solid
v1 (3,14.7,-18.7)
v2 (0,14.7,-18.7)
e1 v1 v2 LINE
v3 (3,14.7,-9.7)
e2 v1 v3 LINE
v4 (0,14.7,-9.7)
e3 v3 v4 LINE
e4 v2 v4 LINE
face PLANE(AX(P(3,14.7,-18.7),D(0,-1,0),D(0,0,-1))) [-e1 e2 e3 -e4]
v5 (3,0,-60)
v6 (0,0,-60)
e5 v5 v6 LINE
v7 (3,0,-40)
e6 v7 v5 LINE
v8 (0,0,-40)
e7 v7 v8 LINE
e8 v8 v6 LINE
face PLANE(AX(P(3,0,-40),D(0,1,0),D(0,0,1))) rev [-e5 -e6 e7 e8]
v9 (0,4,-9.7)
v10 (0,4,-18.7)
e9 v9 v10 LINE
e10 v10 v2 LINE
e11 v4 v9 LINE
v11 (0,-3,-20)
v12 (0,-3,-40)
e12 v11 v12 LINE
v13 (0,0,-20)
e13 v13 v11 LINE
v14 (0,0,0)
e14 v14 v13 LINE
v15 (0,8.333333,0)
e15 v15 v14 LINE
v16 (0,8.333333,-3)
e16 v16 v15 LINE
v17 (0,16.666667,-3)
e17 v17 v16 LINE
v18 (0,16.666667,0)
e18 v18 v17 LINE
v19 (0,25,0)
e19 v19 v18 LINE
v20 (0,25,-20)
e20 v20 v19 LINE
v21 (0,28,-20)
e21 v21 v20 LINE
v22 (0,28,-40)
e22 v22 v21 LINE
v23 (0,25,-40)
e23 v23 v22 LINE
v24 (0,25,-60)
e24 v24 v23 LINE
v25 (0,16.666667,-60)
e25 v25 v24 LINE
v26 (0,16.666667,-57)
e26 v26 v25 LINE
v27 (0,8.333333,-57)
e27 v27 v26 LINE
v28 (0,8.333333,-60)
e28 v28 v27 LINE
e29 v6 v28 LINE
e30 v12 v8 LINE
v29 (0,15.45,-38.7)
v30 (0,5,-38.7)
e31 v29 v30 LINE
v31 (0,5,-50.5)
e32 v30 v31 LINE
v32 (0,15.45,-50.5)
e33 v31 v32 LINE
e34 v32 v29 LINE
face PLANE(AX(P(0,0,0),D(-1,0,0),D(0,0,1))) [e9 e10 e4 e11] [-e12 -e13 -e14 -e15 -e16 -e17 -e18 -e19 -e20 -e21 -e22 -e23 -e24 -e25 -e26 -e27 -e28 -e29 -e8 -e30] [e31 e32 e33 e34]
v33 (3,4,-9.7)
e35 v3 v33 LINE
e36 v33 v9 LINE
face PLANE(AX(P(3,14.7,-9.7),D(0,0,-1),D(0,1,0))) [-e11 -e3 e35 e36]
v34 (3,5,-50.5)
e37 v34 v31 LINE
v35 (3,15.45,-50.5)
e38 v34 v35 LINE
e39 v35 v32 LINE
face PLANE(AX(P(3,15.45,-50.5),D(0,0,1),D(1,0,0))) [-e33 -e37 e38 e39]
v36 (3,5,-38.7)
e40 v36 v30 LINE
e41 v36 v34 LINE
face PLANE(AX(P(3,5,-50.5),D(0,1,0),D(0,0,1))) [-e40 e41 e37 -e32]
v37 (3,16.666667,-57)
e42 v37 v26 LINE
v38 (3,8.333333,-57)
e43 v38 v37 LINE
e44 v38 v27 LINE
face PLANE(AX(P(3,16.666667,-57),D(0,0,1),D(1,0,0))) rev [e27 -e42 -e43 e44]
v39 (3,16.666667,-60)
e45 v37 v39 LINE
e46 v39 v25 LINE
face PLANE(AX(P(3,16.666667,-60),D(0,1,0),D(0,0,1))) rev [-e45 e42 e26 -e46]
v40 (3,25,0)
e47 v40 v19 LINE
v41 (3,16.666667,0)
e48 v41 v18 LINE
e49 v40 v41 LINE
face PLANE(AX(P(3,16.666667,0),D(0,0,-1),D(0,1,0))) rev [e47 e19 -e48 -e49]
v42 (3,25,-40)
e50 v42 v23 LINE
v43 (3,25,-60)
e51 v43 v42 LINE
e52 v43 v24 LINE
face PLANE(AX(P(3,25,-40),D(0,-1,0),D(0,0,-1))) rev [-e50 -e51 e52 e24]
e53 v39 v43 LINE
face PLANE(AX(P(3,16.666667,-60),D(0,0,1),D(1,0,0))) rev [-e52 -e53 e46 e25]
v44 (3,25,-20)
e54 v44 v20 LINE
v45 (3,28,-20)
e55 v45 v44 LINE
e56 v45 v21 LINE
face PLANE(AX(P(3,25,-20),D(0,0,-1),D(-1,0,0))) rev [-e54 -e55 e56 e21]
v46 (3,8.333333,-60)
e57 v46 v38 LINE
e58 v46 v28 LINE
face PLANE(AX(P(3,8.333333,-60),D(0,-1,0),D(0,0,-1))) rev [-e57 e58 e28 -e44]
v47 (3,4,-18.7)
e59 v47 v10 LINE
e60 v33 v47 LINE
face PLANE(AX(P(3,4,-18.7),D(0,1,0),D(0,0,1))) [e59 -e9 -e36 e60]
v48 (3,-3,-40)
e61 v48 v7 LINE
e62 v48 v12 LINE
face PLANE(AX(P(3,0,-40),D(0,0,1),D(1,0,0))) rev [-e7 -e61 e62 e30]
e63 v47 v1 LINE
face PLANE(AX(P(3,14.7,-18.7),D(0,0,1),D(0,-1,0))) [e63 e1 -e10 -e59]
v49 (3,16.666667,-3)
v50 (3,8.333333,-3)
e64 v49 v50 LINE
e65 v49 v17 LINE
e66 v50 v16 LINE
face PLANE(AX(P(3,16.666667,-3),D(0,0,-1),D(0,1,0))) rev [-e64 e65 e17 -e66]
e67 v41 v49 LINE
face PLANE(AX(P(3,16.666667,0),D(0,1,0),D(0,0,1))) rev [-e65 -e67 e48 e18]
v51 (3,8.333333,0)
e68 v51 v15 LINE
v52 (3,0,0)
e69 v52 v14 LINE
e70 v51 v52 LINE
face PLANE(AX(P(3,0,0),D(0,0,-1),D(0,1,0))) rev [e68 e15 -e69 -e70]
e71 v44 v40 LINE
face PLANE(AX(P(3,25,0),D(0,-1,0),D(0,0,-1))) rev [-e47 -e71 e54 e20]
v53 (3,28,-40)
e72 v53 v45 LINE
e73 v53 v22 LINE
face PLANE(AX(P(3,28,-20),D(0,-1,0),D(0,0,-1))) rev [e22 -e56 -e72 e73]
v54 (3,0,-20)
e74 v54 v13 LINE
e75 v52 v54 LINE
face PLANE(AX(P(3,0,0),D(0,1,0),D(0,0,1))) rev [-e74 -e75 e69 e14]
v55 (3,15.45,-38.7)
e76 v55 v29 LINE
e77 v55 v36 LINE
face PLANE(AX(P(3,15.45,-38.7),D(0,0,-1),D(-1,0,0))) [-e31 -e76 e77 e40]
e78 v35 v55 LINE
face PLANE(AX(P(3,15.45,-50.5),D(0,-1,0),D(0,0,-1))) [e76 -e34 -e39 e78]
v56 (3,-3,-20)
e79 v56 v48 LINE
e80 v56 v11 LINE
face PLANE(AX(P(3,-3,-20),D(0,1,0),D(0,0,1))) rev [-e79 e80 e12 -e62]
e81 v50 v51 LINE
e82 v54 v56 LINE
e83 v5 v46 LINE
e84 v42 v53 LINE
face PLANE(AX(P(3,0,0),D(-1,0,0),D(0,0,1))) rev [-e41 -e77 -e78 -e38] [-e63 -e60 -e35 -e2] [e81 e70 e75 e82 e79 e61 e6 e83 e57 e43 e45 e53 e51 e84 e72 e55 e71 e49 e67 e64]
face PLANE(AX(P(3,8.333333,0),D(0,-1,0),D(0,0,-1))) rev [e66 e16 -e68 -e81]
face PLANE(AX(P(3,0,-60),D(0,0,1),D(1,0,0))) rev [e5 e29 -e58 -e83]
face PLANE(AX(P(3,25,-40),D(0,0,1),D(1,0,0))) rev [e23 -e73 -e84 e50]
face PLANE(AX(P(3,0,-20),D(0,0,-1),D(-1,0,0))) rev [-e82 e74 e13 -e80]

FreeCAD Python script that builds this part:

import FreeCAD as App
import Part
import Sketcher

doc = App.newDocument("Part")
body = doc.addObject("PartDesign::Body", "Body")

# Sketch on YZ plane
sketch1 = body.newObject("Sketcher::SketchObject", "Sketch")
sketch1.AttachmentSupport = (doc.getObject("YZ_Plane"), [""])
sketch1.MapMode = "FlatFace"
sketch1.addGeometry([
    Part.LineSegment(App.Vector(25, 0, 0), App.Vector(16.666667, 0, 0)),  # 0
    Part.LineSegment(App.Vector(16.666667, 0, 0), App.Vector(16.666667, -3, 0)),  # 1
    Part.LineSegment(App.Vector(16.666667, -3, 0), App.Vector(8.333333, -3, 0)),  # 2
    Part.LineSegment(App.Vector(8.333333, -3, 0), App.Vector(8.333333, 0, 0)),  # 3
    Part.LineSegment(App.Vector(8.333333, 0, 0), App.Vector(0, 0, 0)),  # 4
    Part.LineSegment(App.Vector(0, 0, 0), App.Vector(0, -20, 0)),  # 5
    Part.LineSegment(App.Vector(0, -20, 0), App.Vector(-3, -20, 0)),  # 6
    Part.LineSegment(App.Vector(-3, -20, 0), App.Vector(-3, -40, 0)),  # 7
    Part.LineSegment(App.Vector(-3, -40, 0), App.Vector(0, -40, 0)),  # 8
    Part.LineSegment(App.Vector(0, -40, 0), App.Vector(0, -60, 0)),  # 9
    Part.LineSegment(App.Vector(0, -60, 0), App.Vector(8.333333, -60, 0)),  # 10
    Part.LineSegment(App.Vector(8.333333, -60, 0), App.Vector(8.333333, -57, 0)),  # 11
    Part.LineSegment(App.Vector(8.333333, -57, 0), App.Vector(16.666667, -57, 0)),  # 12
    Part.LineSegment(App.Vector(16.666667, -57, 0), App.Vector(16.666667, -60, 0)),  # 13
    Part.LineSegment(App.Vector(16.666667, -60, 0), App.Vector(25, -60, 0)),  # 14
    Part.LineSegment(App.Vector(25, -60, 0), App.Vector(25, -40, 0)),  # 15
    Part.LineSegment(App.Vector(25, -40, 0), App.Vector(28, -40, 0)),  # 16
    Part.LineSegment(App.Vector(28, -40, 0), App.Vector(28, -20, 0)),  # 17
    Part.LineSegment(App.Vector(28, -20, 0), App.Vector(25, -20, 0)),  # 18
    Part.LineSegment(App.Vector(25, -20, 0), App.Vector(25, 0, 0)),  # 19
    Part.LineSegment(App.Vector(4, -9.7, 0), App.Vector(14.7, -9.7, 0)),  # 20
    Part.LineSegment(App.Vector(14.7, -9.7, 0), App.Vector(14.7, -18.7, 0)),  # 21
    Part.LineSegment(App.Vector(14.7, -18.7, 0), App.Vector(4, -18.7, 0)),  # 22
    Part.LineSegment(App.Vector(4, -18.7, 0), App.Vector(4, -9.7, 0)),  # 23
    Part.LineSegment(App.Vector(5, -38.7, 0), App.Vector(15.45, -38.7, 0)),  # 24
    Part.LineSegment(App.Vector(15.45, -38.7, 0), App.Vector(15.45, -50.5, 0)),  # 25
    Part.LineSegment(App.Vector(15.45, -50.5, 0), App.Vector(5, -50.5, 0)),  # 26
    Part.LineSegment(App.Vector(5, -50.5, 0), App.Vector(5, -38.7, 0)),  # 27
], False)
sketch1.addConstraint([
    Sketcher.Constraint("Coincident", 0, 2, 1, 1),
    Sketcher.Constraint("Coincident", 1, 2, 2, 1),
    Sketcher.Constraint("Coincident", 2, 2, 3, 1),
    Sketcher.Constraint("Coincident", 3, 2, 4, 1),
    Sketcher.Constraint("Coincident", 4, 2, 5, 1),
    Sketcher.Constraint("Coincident", 5, 2, 6, 1),
    Sketcher.Constraint("Coincident", 6, 2, 7, 1),
    Sketcher.Constraint("Coincident", 7, 2, 8, 1),
    Sketcher.Constraint("Coincident", 8, 2, 9, 1),
    Sketcher.Constraint("Coincident", 9, 2, 10, 1),
    Sketcher.Constraint("Coincident", 10, 2, 11, 1),
    Sketcher.Constraint("Coincident", 11, 2, 12, 1),
    Sketcher.Constraint("Coincident", 12, 2, 13, 1),
    Sketcher.Constraint("Coincident", 13, 2, 14, 1),
    Sketcher.Constraint("Coincident", 14, 2, 15, 1),
    Sketcher.Constraint("Coincident", 15, 2, 16, 1),
    Sketcher.Constraint("Coincident", 16, 2, 17, 1),
    Sketcher.Constraint("Coincident", 17, 2, 18, 1),
    Sketcher.Constraint("Coincident", 18, 2, 19, 1),
    Sketcher.Constraint("Coincident", 19, 2, 0, 1),
    Sketcher.Constraint("Coincident", 20, 2, 21, 1),
    Sketcher.Constraint("Coincident", 21, 2, 22, 1),
    Sketcher.Constraint("Coincident", 22, 2, 23, 1),
    Sketcher.Constraint("Coincident", 23, 2, 20, 1),
    Sketcher.Constraint("Coincident", 24, 2, 25, 1),
    Sketcher.Constraint("Coincident", 25, 2, 26, 1),
    Sketcher.Constraint("Coincident", 26, 2, 27, 1),
    Sketcher.Constraint("Coincident", 27, 2, 24, 1),
    Sketcher.Constraint("Horizontal", 0),
    Sketcher.Constraint("Vertical", 1),
    Sketcher.Constraint("Horizontal", 2),
    Sketcher.Constraint("Vertical", 3),
    Sketcher.Constraint("Horizontal", 4),
    Sketcher.Constraint("Vertical", 5),
    Sketcher.Constraint("Horizontal", 6),
    Sketcher.Constraint("Vertical", 7),
    Sketcher.Constraint("Horizontal", 8),
    Sketcher.Constraint("Vertical", 9),
    Sketcher.Constraint("Horizontal", 10),
    Sketcher.Constraint("Vertical", 11),
    Sketcher.Constraint("Horizontal", 12),
    Sketcher.Constraint("Vertical", 13),
    Sketcher.Constraint("Horizontal", 14),
    Sketcher.Constraint("Vertical", 15),
    Sketcher.Constraint("Horizontal", 16),
    Sketcher.Constraint("Vertical", 17),
    Sketcher.Constraint("Horizontal", 18),
    Sketcher.Constraint("Vertical", 19),
    Sketcher.Constraint("Horizontal", 20),
    Sketcher.Constraint("Vertical", 21),
    Sketcher.Constraint("Horizontal", 22),
    Sketcher.Constraint("Vertical", 23),
    Sketcher.Constraint("Horizontal", 24),
    Sketcher.Constraint("Vertical", 25),
    Sketcher.Constraint("Horizontal", 26),
    Sketcher.Constraint("Vertical", 27),
    Sketcher.Constraint("Coincident", 4, 2, -1, 1),
    Sketcher.Constraint("PointOnObject", 0, 2, -1),
    Sketcher.Constraint("PointOnObject", 8, 2, -2),
    Sketcher.Constraint("Horizontal", 10, 2, 13, 2),
    Sketcher.Constraint("Horizontal", 8, 2, 15, 2),
    Sketcher.Constraint("Horizontal", 6, 2, 17, 2),
    Sketcher.Constraint("Vertical", 3, 2, 10, 2),
    Sketcher.Constraint("Vertical", 1, 2, 12, 2),
    Sketcher.Constraint("Vertical", 15, 2, 18, 2),
    Sketcher.Constraint("Equal", 0, 2),
    Sketcher.Constraint("Equal", 2, 4),
    Sketcher.Constraint("Equal", 8, 16),
    Sketcher.Constraint("Equal", 18, 1),
    Sketcher.Constraint("Equal", 5, 7),
    Sketcher.Constraint("Equal", 7, 9),
    Sketcher.Constraint("Equal", 3, 11),
    Sketcher.Constraint("DistanceX", 6, 2, 6, 1, 3.0),
    Sketcher.Constraint("DistanceY", 5, 2, 5, 1, 20.0),
    Sketcher.Constraint("DistanceY", 21, 2, 21, 1, 9.0),
    Sketcher.Constraint("DistanceX", 20, 1, 20, 2, 10.7),
    Sketcher.Constraint("DistanceY", 25, 2, 25, 1, 11.8),
    Sketcher.Constraint("DistanceX", -1, 1, 14, 2, 25.0),
    Sketcher.Constraint("DistanceX", -1, 1, 22, 2, 4.0),
    Sketcher.Constraint("DistanceX", -1, 1, 26, 2, 5.0),
    Sketcher.Constraint("DistanceX", 24, 1, 24, 2, 10.45),
    Sketcher.Constraint("DistanceY", 20, 2, -1, 1, 9.7),
    Sketcher.Constraint("DistanceY", 24, 2, -1, 1, 38.7),
])
pad1 = body.newObject("PartDesign::Pad", "Pad")
pad1.Profile = sketch1
pad1.Length = 3

doc.recompute()
